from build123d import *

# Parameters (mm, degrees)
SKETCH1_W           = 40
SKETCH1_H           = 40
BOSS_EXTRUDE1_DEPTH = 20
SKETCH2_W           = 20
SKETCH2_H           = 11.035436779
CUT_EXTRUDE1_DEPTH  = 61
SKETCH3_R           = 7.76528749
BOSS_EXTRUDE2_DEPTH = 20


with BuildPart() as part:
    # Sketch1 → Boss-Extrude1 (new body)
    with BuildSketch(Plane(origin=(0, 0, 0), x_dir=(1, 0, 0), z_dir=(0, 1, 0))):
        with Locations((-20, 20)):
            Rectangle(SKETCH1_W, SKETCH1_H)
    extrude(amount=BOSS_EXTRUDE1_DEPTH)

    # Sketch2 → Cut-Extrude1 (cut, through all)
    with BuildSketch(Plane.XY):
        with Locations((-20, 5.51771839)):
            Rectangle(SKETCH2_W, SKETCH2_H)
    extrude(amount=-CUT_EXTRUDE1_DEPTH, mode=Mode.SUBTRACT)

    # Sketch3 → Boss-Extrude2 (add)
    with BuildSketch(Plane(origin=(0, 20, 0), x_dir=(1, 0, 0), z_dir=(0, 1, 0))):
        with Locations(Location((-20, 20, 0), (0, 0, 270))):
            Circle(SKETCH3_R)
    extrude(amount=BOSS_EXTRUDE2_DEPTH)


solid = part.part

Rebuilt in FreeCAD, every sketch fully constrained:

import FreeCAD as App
import Part
import Sketcher

V = App.Vector

doc = App.newDocument("Part")
body = doc.addObject("PartDesign::Body", "Body")

sketch1 = body.newObject("Sketcher::SketchObject", "Sketch")
sketch1.AttachmentSupport = (doc.getObject("XZ_Plane"), [""])
sketch1.MapMode = "FlatFace"
sketch1.addGeometry(Part.LineSegment(V(-40, -40, 0), V(-40, 0, 0)), False)
sketch1.addGeometry(Part.LineSegment(V(-40, 0, 0), V(0, 0, 0)), False)
sketch1.addGeometry(Part.LineSegment(V(0, 0, 0), V(0, -40, 0)), False)
sketch1.addGeometry(Part.LineSegment(V(0, -40, 0), V(-40, -40, 0)), False)
sketch1.addConstraint(Sketcher.Constraint("Coincident", 0, 2, 1, 1))
sketch1.addConstraint(Sketcher.Constraint("Coincident", 1, 2, 2, 1))
sketch1.addConstraint(Sketcher.Constraint("Coincident", 2, 2, 3, 1))
sketch1.addConstraint(Sketcher.Constraint("Coincident", 3, 2, 0, 1))
sketch1.addConstraint(Sketcher.Constraint("Vertical", 0))
sketch1.addConstraint(Sketcher.Constraint("Horizontal", 1))
sketch1.addConstraint(Sketcher.Constraint("Vertical", 2))
sketch1.addConstraint(Sketcher.Constraint("Horizontal", 3))
sketch1.addConstraint(Sketcher.Constraint("Coincident", 1, 2, -1, 1))
sketch1.addConstraint(Sketcher.Constraint("Equal", 3, 0))
sketch1.addConstraint(Sketcher.Constraint("DistanceX", 1, 1, 1, 2, 40.0))
pad1 = body.newObject("PartDesign::Pad", "Pad")
pad1.Profile = sketch1
pad1.Length = 20
pad1.Reversed = True

sketch2 = body.newObject("Sketcher::SketchObject", "Sketch001")
sketch2.AttachmentSupport = (doc.getObject("XY_Plane"), [""])
sketch2.MapMode = "FlatFace"
sketch2.addGeometry(Part.LineSegment(V(-30, 11, 0), V(-30, 0, 0)), False)
sketch2.addGeometry(Part.LineSegment(V(-30, 0, 0), V(-10, 0, 0)), False)
sketch2.addGeometry(Part.LineSegment(V(-10, 0, 0), V(-10, 11, 0)), False)
sketch2.addGeometry(Part.LineSegment(V(-10, 11, 0), V(-30, 11, 0)), False)
sketch2.addConstraint(Sketcher.Constraint("Coincident", 0, 2, 1, 1))
sketch2.addConstraint(Sketcher.Constraint("Coincident", 1, 2, 2, 1))
sketch2.addConstraint(Sketcher.Constraint("Coincident", 2, 2, 3, 1))
sketch2.addConstraint(Sketcher.Constraint("Coincident", 3, 2, 0, 1))
sketch2.addConstraint(Sketcher.Constraint("Vertical", 0))
sketch2.addConstraint(Sketcher.Constraint("Horizontal", 1))
sketch2.addConstraint(Sketcher.Constraint("Vertical", 2))
sketch2.addConstraint(Sketcher.Constraint("Horizontal", 3))
sketch2.addConstraint(Sketcher.Constraint("PointOnObject", 0, 2, -1))
sketch2.addConstraint(Sketcher.Constraint("DistanceX", 1, 1, 1, 2, 20.0))
sketch2.addConstraint(Sketcher.Constraint("DistanceX", 0, 2, -1, 1, 30.0))
sketch2.addConstraint(Sketcher.Constraint("DistanceY", 0, 2, 0, 1, 11.035437))
pocket1 = body.newObject("PartDesign::Pocket", "Pocket")
pocket1.Profile = sketch2
pocket1.Type = "ThroughAll"

sketch3 = body.newObject("Sketcher::SketchObject", "Sketch002")
sketch3.AttachmentSupport = (doc.getObject("XZ_Plane"), [""])
sketch3.MapMode = "FlatFace"
sketch3.AttachmentOffset = App.Placement(V(0, 0, -20), App.Rotation())
sketch3.addGeometry(Part.Circle(V(-20, -20, 0), V(0, 0, 1), 8), False)
sketch3.addConstraint(Sketcher.Constraint("DistanceX", 0, 3, -1, 1, 20.0))
sketch3.addConstraint(Sketcher.Constraint("DistanceY", 0, 3, -1, 1, 20.0))
sketch3.addConstraint(Sketcher.Constraint("Diameter", 0, 15.530575))
pad2 = body.newObject("PartDesign::Pad", "Pad001")
pad2.Profile = sketch3
pad2.Length = 20
pad2.Reversed = True

doc.recompute()
